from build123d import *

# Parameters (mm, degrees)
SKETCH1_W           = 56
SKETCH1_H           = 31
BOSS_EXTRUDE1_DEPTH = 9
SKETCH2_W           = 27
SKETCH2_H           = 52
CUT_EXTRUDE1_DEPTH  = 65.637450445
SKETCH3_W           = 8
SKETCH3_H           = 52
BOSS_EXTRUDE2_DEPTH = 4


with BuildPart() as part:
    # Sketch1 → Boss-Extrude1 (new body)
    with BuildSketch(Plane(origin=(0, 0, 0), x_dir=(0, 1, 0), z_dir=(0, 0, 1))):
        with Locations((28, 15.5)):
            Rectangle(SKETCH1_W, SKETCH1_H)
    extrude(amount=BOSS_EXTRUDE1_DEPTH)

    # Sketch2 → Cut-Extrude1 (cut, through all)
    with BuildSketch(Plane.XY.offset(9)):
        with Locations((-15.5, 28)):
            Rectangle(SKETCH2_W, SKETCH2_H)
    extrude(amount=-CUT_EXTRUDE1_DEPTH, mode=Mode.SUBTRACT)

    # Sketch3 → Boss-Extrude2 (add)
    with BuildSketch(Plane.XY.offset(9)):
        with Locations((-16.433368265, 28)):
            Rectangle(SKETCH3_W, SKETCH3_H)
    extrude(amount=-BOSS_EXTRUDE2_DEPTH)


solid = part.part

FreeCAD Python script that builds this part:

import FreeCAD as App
import Part
import Sketcher


def add_polygon(sketch, points):
    """Adds a closed chain of lines whose ends are joined by coincident constraints."""
    first, n = sketch.GeometryCount, len(points)
    for a, b in zip(points, points[1:] + points[:1]):
        sketch.addGeometry(Part.LineSegment(App.Vector(*a, 0), App.Vector(*b, 0)), False)
    for i in range(n):
        sketch.addConstraint(Sketcher.Constraint("Coincident", first + i, 2, first + (i + 1) % n, 1))

doc = App.newDocument("Part")
body = doc.addObject("PartDesign::Body", "Body")

# Sketch on XY plane
sketch1 = body.newObject("Sketcher::SketchObject", "Sketch")
sketch1.AttachmentSupport = (doc.getObject("XY_Plane"), [""])
sketch1.MapMode = "FlatFace"
add_polygon(sketch1, [(-31, 0), (0, 0), (0, 56), (-31, 56)])  # lines 0-3
sketch1.addConstraint(Sketcher.Constraint("Horizontal", 0))
sketch1.addConstraint(Sketcher.Constraint("Vertical", 1))
sketch1.addConstraint(Sketcher.Constraint("Horizontal", 2))
sketch1.addConstraint(Sketcher.Constraint("Vertical", 3))
sketch1.addConstraint(Sketcher.Constraint("Coincident", 0, 2, -1, 1))
sketch1.addConstraint(Sketcher.Constraint("DistanceX", 0, 1, 0, 2, 31.0))
sketch1.addConstraint(Sketcher.Constraint("DistanceY", 1, 1, 1, 2, 56.0))
pad1 = body.newObject("PartDesign::Pad", "Pad")
pad1.Profile = sketch1
pad1.Length = 9

# Sketch on XY plane
sketch2 = body.newObject("Sketcher::SketchObject", "Sketch001")
sketch2.AttachmentSupport = (doc.getObject("XY_Plane"), [""])
sketch2.MapMode = "FlatFace"
sketch2.AttachmentOffset = App.Placement(App.Vector(0, 0, 9), App.Rotation())
add_polygon(sketch2, [(-29, 54), (-29, 2), (-2, 2), (-2, 54)])  # lines 0-3
sketch2.addConstraint(Sketcher.Constraint("Vertical", 0))
sketch2.addConstraint(Sketcher.Constraint("Horizontal", 1))
sketch2.addConstraint(Sketcher.Constraint("Vertical", 2))
sketch2.addConstraint(Sketcher.Constraint("Horizontal", 3))
sketch2.addConstraint(Sketcher.Constraint("DistanceX", 1, 1, 1, 2, 27.0))
sketch2.addConstraint(Sketcher.Constraint("DistanceY", 0, 2, 0, 1, 52.0))
sketch2.addConstraint(Sketcher.Constraint("DistanceX", 0, 2, -1, 1, 29.0))
sketch2.addConstraint(Sketcher.Constraint("DistanceY", -1, 1, 0, 2, 2.0))
pocket1 = body.newObject("PartDesign::Pocket", "Pocket")
pocket1.Profile = sketch2
pocket1.Type = "ThroughAll"

# Sketch on XY plane
sketch3 = body.newObject("Sketcher::SketchObject", "Sketch002")
sketch3.AttachmentSupport = (doc.getObject("XY_Plane"), [""])
sketch3.MapMode = "FlatFace"
sketch3.AttachmentOffset = App.Placement(App.Vector(0, 0, 9), App.Rotation())
add_polygon(sketch3, [(-20, 54), (-20, 2), (-12, 2), (-12, 54)])  # lines 0-3
sketch3.addConstraint(Sketcher.Constraint("Vertical", 0))
sketch3.addConstraint(Sketcher.Constraint("Horizontal", 1))
sketch3.addConstraint(Sketcher.Constraint("Vertical", 2))
sketch3.addConstraint(Sketcher.Constraint("Horizontal", 3))
sketch3.addConstraint(Sketcher.Constraint("DistanceX", 1, 1, 1, 2, 8.0))
sketch3.addConstraint(Sketcher.Constraint("DistanceY", 0, 2, 0, 1, 52.0))
sketch3.addConstraint(Sketcher.Constraint("DistanceY", -1, 1, 0, 2, 2.0))
sketch3.addConstraint(Sketcher.Constraint("DistanceX", 0, 2, -1, 1, 20.433368))
pad2 = body.newObject("PartDesign::Pad", "Pad001")
pad2.Profile = sketch3
pad2.Length = 4
pad2.Reversed = True

doc.recompute()
